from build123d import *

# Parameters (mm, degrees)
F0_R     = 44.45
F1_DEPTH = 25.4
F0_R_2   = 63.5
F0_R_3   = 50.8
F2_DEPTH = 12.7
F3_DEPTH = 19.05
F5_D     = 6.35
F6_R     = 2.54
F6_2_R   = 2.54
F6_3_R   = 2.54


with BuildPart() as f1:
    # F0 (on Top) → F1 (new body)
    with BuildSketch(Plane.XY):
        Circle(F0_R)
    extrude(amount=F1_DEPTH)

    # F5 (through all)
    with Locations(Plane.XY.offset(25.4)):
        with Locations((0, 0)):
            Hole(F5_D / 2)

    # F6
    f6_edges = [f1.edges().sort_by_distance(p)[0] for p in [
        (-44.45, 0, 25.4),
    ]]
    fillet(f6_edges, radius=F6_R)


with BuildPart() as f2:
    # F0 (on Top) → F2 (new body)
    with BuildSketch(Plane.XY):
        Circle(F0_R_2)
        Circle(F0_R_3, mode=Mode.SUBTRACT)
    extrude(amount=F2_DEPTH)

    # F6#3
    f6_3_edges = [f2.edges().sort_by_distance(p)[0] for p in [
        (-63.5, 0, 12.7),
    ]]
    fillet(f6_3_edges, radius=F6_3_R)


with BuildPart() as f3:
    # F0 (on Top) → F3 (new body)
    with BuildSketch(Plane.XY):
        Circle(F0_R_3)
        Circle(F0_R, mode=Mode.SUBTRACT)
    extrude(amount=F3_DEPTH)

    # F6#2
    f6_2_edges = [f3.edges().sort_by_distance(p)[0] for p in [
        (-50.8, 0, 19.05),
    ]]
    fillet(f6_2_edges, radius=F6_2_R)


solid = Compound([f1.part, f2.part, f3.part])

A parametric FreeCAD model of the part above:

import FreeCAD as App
import Part
import Sketcher
Q = App.Units.Quantity


def edges_at(feature, points):
    """Names of the edges that pass closest to the given points."""
    edges = feature.Shape.Edges
    near = lambda p: min(range(len(edges)), key=lambda i: edges[i].distToShape(Part.Vertex(*p))[0])
    return sorted({f"Edge{near(p) + 1}" for p in points})

doc = App.newDocument("Part")
body = doc.addObject("PartDesign::Body", "Body")

sketch1 = body.newObject("Sketcher::SketchObject", "Sketch")
sketch1.AttachmentSupport = (doc.getObject("XY_Plane"), [""])
sketch1.MapMode = "FlatFace"
sketch1.addGeometry(Part.Circle(App.Vector(0, 0, 0), App.Vector(0, 0, 1), 44.45), False)
sketch1.addConstraint([
    Sketcher.Constraint("Coincident", 0, 3, -1, 1),
    Sketcher.Constraint("Diameter", 0, Q("3.5 in")),
])
pad1 = body.newObject("PartDesign::Pad", "Pad")
pad1.Profile = sketch1
pad1.Length = Q("1 in")

sketch2 = body.newObject("Sketcher::SketchObject", "Sketch001")
sketch2.AttachmentSupport = (doc.getObject("XY_Plane"), [""])
sketch2.MapMode = "FlatFace"
sketch2.AttachmentOffset = App.Placement(App.Vector(0, 0, 1 * 25.4), App.Rotation())
sketch2.addGeometry(Part.Circle(App.Vector(0, 0, 0), App.Vector(0, 0, 1), 3.175), False)
sketch2.addConstraint([
    Sketcher.Constraint("Coincident", 0, 3, -1, 1),
    Sketcher.Constraint("Diameter", 0, Q("0.25 in")),
])
doc.recompute()
hole = body.newObject("PartDesign::Hole", "Hole")
hole.Profile = sketch2
hole.ThreadType = "None"
hole.Diameter = Q("0.25 in")
hole.DepthType = "ThroughAll"
doc.recompute()

fillet = body.newObject("PartDesign::Fillet", "Fillet")
fillet.Base = (hole, edges_at(hole, [(-44.45, 0, 25.4)]))
fillet.Radius = Q("0.1 in")
body2 = doc.addObject("PartDesign::Body", "Body001")

sketch3 = body2.newObject("Sketcher::SketchObject", "Sketch002")
sketch3.AttachmentSupport = (doc.getObject("XY_Plane001"), [""])
sketch3.MapMode = "FlatFace"
sketch3.addGeometry([
    Part.Circle(App.Vector(0, 0, 0), App.Vector(0, 0, 1), 63.5),
    Part.Circle(App.Vector(0, 0, 0), App.Vector(0, 0, 1), 50.8),
], False)
sketch3.addConstraint([
    Sketcher.Constraint("Coincident", 0, 3, -1, 1),
    Sketcher.Constraint("Coincident", 1, 3, -1, 1),
    Sketcher.Constraint("Diameter", 0, Q("5 in")),
    Sketcher.Constraint("Diameter", 1, Q("4 in")),
])
pad2 = body2.newObject("PartDesign::Pad", "Pad001")
pad2.Profile = sketch3
pad2.Length = Q("0.5 in")
doc.recompute()

fillet2 = body2.newObject("PartDesign::Fillet", "Fillet001")
fillet2.Base = (pad2, edges_at(pad2, [(-63.5, 0, 12.7)]))
fillet2.Radius = Q("0.1 in")
body3 = doc.addObject("PartDesign::Body", "Body002")

sketch4 = body3.newObject("Sketcher::SketchObject", "Sketch003")
sketch4.AttachmentSupport = (doc.getObject("XY_Plane002"), [""])
sketch4.MapMode = "FlatFace"
sketch4.addGeometry([
    Part.Circle(App.Vector(0, 0, 0), App.Vector(0, 0, 1), 50.8),
    Part.Circle(App.Vector(0, 0, 0), App.Vector(0, 0, 1), 44.45),
], False)
sketch4.addConstraint([
    Sketcher.Constraint("Coincident", 0, 3, -1, 1),
    Sketcher.Constraint("Coincident", 1, 3, -1, 1),
    Sketcher.Constraint("Diameter", 0, Q("4 in")),
    Sketcher.Constraint("Diameter", 1, Q("3.5 in")),
])
pad3 = body3.newObject("PartDesign::Pad", "Pad002")
pad3.Profile = sketch4
pad3.Length = Q("0.75 in")
doc.recompute()

fillet3 = body3.newObject("PartDesign::Fillet", "Fillet002")
fillet3.Base = (pad3, edges_at(pad3, [(-50.8, 0, 19.05)]))
fillet3.Radius = Q("0.1 in")

doc.recompute()
